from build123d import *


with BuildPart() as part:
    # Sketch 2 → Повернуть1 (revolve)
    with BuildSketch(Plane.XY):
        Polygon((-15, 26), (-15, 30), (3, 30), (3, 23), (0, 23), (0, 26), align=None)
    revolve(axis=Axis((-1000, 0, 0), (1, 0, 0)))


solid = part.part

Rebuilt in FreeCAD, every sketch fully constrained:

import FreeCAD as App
import Part
import Sketcher
from FreeCAD import Vector
Q = App.Units.Quantity

doc = App.newDocument("Part")
body = doc.addObject("PartDesign::Body", "Body")

# Sketch on XY plane
sketch1 = body.newObject("Sketcher::SketchObject", "Sketch")
sketch1.AttachmentSupport = (doc.getObject("XY_Plane"), [""])
sketch1.MapMode = "FlatFace"
sketch1.addGeometry(Part.LineSegment(Vector(-15, 30, 0), Vector(-15, 26, 0)), False)
sketch1.addGeometry(Part.LineSegment(Vector(-15, 26, 0), Vector(0, 26, 0)), False)
sketch1.addGeometry(Part.LineSegment(Vector(0, 26, 0), Vector(0, 23, 0)), False)
sketch1.addGeometry(Part.LineSegment(Vector(0, 23, 0), Vector(3, 23, 0)), False)
sketch1.addGeometry(Part.LineSegment(Vector(3, 23, 0), Vector(3, 30, 0)), False)
sketch1.addGeometry(Part.LineSegment(Vector(3, 30, 0), Vector(-15, 30, 0)), False)
sketch1.addConstraint(Sketcher.Constraint("Coincident", 0, 2, 1, 1))
sketch1.addConstraint(Sketcher.Constraint("Coincident", 1, 2, 2, 1))
sketch1.addConstraint(Sketcher.Constraint("Coincident", 2, 2, 3, 1))
sketch1.addConstraint(Sketcher.Constraint("Coincident", 3, 2, 4, 1))
sketch1.addConstraint(Sketcher.Constraint("Coincident", 4, 2, 5, 1))
sketch1.addConstraint(Sketcher.Constraint("Coincident", 5, 2, 0, 1))
sketch1.addConstraint(Sketcher.Constraint("Vertical", 0))
sketch1.addConstraint(Sketcher.Constraint("Horizontal", 1))
sketch1.addConstraint(Sketcher.Constraint("Vertical", 2))
sketch1.addConstraint(Sketcher.Constraint("Horizontal", 3))
sketch1.addConstraint(Sketcher.Constraint("Vertical", 4))
sketch1.addConstraint(Sketcher.Constraint("Horizontal", 5))
sketch1.addConstraint(Sketcher.Constraint("PointOnObject", 1, 2, -2))
sketch1.addConstraint(Sketcher.Constraint("Equal", 3, 2))
sketch1.addConstraint(Sketcher.Constraint("DistanceX", 1, 1, 1, 2, Q("15 mm")))
sketch1.addConstraint(Sketcher.Constraint("DistanceX", 3, 1, 3, 2, Q("3 mm")))
sketch1.addConstraint(Sketcher.Constraint("DistanceY", 0, 2, 0, 1, Q("4 mm")))
sketch1.addConstraint(Sketcher.Constraint("DistanceY", -1, 1, 0, 2, Q("26 mm")))
revolution = body.newObject("PartDesign::Revolution", "Revolution")
revolution.Profile = sketch1
revolution.ReferenceAxis = (sketch1, ["H_Axis"])
revolution.Angle = 360

doc.recompute()
